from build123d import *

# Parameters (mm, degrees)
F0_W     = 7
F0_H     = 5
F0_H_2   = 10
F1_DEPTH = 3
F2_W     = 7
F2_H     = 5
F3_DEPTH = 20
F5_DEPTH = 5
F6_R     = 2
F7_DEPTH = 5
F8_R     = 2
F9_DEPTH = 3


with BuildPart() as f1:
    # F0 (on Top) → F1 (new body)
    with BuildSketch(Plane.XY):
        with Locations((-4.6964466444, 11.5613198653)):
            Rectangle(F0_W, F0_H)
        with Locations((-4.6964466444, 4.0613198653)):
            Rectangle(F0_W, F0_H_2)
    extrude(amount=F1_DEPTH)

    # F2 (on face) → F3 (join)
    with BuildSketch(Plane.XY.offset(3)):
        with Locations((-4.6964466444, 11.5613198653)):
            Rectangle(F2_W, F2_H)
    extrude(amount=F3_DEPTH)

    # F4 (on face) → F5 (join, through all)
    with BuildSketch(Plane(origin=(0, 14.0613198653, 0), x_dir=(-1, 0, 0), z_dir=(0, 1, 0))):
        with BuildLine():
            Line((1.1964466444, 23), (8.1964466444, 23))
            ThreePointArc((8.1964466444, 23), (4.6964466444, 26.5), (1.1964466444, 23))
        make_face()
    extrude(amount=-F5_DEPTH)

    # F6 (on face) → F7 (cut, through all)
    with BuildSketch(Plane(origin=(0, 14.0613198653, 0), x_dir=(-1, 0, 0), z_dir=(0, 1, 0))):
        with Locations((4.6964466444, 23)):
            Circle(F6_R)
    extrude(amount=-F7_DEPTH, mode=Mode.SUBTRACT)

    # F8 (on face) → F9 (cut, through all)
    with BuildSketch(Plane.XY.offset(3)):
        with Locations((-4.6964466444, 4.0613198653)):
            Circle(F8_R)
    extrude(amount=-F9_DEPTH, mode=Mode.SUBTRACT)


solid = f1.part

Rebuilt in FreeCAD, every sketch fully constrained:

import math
import FreeCAD as App
import Part
import Sketcher
Q = App.Units.Quantity


def add_polygon(sketch, points):
    """Adds a closed chain of lines whose ends are joined by coincident constraints."""
    first, n = sketch.GeometryCount, len(points)
    for a, b in zip(points, points[1:] + points[:1]):
        sketch.addGeometry(Part.LineSegment(App.Vector(*a, 0), App.Vector(*b, 0)), False)
    for i in range(n):
        sketch.addConstraint(Sketcher.Constraint("Coincident", first + i, 2, first + (i + 1) % n, 1))

doc = App.newDocument("Part")
body = doc.addObject("PartDesign::Body", "Body")

sketch1 = doc.addObject("Sketcher::SketchObject", "Sketch")
body.addObject(sketch1)
sketch1.AttachmentSupport = (doc.XY_Plane, [""])
sketch1.MapMode = "FlatFace"
add_polygon(sketch1, [(-8, 14), (-8, -1), (-1, -1), (-1, 14)])
sketch1.addConstraint(Sketcher.Constraint("Vertical", 0))
sketch1.addConstraint(Sketcher.Constraint("Horizontal", 1))
sketch1.addConstraint(Sketcher.Constraint("Vertical", 2))
sketch1.addConstraint(Sketcher.Constraint("Horizontal", 3))
sketch1.addConstraint(Sketcher.Constraint("DistanceX", 1, 1, 1, 2, Q("7 mm")))
sketch1.addConstraint(Sketcher.Constraint("DistanceY", 0, 2, 0, 1, Q("15 mm")))
sketch1.addConstraint(Sketcher.Constraint("DistanceY", 0, 2, -1, 1, Q("0.93868 mm")))
sketch1.addConstraint(Sketcher.Constraint("DistanceX", 0, 2, -1, 1, Q("8.196447 mm")))
pad1 = doc.addObject("PartDesign::Pad", "Pad")
body.addObject(pad1)
pad1.Profile = sketch1
pad1.Length = 3

sketch2 = doc.addObject("Sketcher::SketchObject", "Sketch001")
body.addObject(sketch2)
sketch2.AttachmentSupport = (doc.XY_Plane, [""])
sketch2.MapMode = "FlatFace"
sketch2.AttachmentOffset = App.Placement(App.Vector(0, 0, 3), App.Rotation())
add_polygon(sketch2, [(-8, 14), (-8, 9), (-1, 9), (-1, 14)])
sketch2.addConstraint(Sketcher.Constraint("Vertical", 0))
sketch2.addConstraint(Sketcher.Constraint("Horizontal", 1))
sketch2.addConstraint(Sketcher.Constraint("Vertical", 2))
sketch2.addConstraint(Sketcher.Constraint("Horizontal", 3))
sketch2.addConstraint(Sketcher.Constraint("DistanceX", 1, 1, 1, 2, Q("7 mm")))
sketch2.addConstraint(Sketcher.Constraint("DistanceY", 0, 2, 0, 1, Q("5 mm")))
sketch2.addConstraint(Sketcher.Constraint("DistanceY", -1, 1, 0, 2, Q("9.06132 mm")))
sketch2.addConstraint(Sketcher.Constraint("DistanceX", 0, 2, -1, 1, Q("8.196447 mm")))
pad2 = doc.addObject("PartDesign::Pad", "Pad001")
body.addObject(pad2)
pad2.Profile = sketch2
pad2.Length = 20

sketch3 = doc.addObject("Sketcher::SketchObject", "Sketch002")
body.addObject(sketch3)
sketch3.AttachmentSupport = (doc.XZ_Plane, [""])
sketch3.MapMode = "FlatFace"
sketch3.AttachmentOffset = App.Placement(App.Vector(0, 0, -14.06132), App.Rotation())
sketch3.addGeometry(Part.LineSegment(App.Vector(-1.2, 23, 0), App.Vector(-8.2, 23, 0)), False)
sketch3.addGeometry(Part.ArcOfCircle(Part.Circle(App.Vector(-4.7, 23, 0), App.Vector(0, 0, 1), 3.5), math.radians(0), math.radians(180)), False)
sketch3.addConstraint(Sketcher.Constraint("Coincident", 0, 1, 1, 1))
sketch3.addConstraint(Sketcher.Constraint("Coincident", 1, 2, 0, 2))
sketch3.addConstraint(Sketcher.Constraint("Horizontal", 0))
sketch3.addConstraint(Sketcher.Constraint("Horizontal", 1, 3, 0, 1))
sketch3.addConstraint(Sketcher.Constraint("Radius", 1, Q("3.5 mm")))
sketch3.addConstraint(Sketcher.Constraint("DistanceY", -1, 1, 1, 3, Q("23 mm")))
sketch3.addConstraint(Sketcher.Constraint("DistanceX", 1, 3, -1, 1, Q("4.696447 mm")))
pad3 = doc.addObject("PartDesign::Pad", "Pad002")
body.addObject(pad3)
pad3.Profile = sketch3
pad3.Length = 5

sketch4 = doc.addObject("Sketcher::SketchObject", "Sketch003")
body.addObject(sketch4)
sketch4.AttachmentSupport = (doc.XZ_Plane, [""])
sketch4.MapMode = "FlatFace"
sketch4.AttachmentOffset = App.Placement(App.Vector(0, 0, -14.06132), App.Rotation())
sketch4.addGeometry(Part.Circle(App.Vector(-4.7, 23, 0), App.Vector(0, 0, 1), 2), False)
sketch4.addConstraint(Sketcher.Constraint("Diameter", 0, Q("4 mm")))
sketch4.addConstraint(Sketcher.Constraint("DistanceY", -1, 1, 0, 3, Q("23 mm")))
sketch4.addConstraint(Sketcher.Constraint("DistanceX", 0, 3, -1, 1, Q("4.696447 mm")))
pocket1 = doc.addObject("PartDesign::Pocket", "Pocket")
body.addObject(pocket1)
pocket1.Profile = sketch4
pocket1.Type = "ThroughAll"
pocket1.Reversed = True

sketch5 = doc.addObject("Sketcher::SketchObject", "Sketch004")
body.addObject(sketch5)
sketch5.AttachmentSupport = (doc.XY_Plane, [""])
sketch5.MapMode = "FlatFace"
sketch5.AttachmentOffset = App.Placement(App.Vector(0, 0, 3), App.Rotation())
sketch5.addGeometry(Part.Circle(App.Vector(-4.7, 4.1, 0), App.Vector(0, 0, 1), 2), False)
sketch5.addConstraint(Sketcher.Constraint("Diameter", 0, Q("4 mm")))
sketch5.addConstraint(Sketcher.Constraint("DistanceY", -1, 1, 0, 3, Q("4.06132 mm")))
sketch5.addConstraint(Sketcher.Constraint("DistanceX", 0, 3, -1, 1, Q("4.696447 mm")))
pocket2 = doc.addObject("PartDesign::Pocket", "Pocket001")
body.addObject(pocket2)
pocket2.Profile = sketch5
pocket2.Type = "ThroughAll"

doc.recompute()
